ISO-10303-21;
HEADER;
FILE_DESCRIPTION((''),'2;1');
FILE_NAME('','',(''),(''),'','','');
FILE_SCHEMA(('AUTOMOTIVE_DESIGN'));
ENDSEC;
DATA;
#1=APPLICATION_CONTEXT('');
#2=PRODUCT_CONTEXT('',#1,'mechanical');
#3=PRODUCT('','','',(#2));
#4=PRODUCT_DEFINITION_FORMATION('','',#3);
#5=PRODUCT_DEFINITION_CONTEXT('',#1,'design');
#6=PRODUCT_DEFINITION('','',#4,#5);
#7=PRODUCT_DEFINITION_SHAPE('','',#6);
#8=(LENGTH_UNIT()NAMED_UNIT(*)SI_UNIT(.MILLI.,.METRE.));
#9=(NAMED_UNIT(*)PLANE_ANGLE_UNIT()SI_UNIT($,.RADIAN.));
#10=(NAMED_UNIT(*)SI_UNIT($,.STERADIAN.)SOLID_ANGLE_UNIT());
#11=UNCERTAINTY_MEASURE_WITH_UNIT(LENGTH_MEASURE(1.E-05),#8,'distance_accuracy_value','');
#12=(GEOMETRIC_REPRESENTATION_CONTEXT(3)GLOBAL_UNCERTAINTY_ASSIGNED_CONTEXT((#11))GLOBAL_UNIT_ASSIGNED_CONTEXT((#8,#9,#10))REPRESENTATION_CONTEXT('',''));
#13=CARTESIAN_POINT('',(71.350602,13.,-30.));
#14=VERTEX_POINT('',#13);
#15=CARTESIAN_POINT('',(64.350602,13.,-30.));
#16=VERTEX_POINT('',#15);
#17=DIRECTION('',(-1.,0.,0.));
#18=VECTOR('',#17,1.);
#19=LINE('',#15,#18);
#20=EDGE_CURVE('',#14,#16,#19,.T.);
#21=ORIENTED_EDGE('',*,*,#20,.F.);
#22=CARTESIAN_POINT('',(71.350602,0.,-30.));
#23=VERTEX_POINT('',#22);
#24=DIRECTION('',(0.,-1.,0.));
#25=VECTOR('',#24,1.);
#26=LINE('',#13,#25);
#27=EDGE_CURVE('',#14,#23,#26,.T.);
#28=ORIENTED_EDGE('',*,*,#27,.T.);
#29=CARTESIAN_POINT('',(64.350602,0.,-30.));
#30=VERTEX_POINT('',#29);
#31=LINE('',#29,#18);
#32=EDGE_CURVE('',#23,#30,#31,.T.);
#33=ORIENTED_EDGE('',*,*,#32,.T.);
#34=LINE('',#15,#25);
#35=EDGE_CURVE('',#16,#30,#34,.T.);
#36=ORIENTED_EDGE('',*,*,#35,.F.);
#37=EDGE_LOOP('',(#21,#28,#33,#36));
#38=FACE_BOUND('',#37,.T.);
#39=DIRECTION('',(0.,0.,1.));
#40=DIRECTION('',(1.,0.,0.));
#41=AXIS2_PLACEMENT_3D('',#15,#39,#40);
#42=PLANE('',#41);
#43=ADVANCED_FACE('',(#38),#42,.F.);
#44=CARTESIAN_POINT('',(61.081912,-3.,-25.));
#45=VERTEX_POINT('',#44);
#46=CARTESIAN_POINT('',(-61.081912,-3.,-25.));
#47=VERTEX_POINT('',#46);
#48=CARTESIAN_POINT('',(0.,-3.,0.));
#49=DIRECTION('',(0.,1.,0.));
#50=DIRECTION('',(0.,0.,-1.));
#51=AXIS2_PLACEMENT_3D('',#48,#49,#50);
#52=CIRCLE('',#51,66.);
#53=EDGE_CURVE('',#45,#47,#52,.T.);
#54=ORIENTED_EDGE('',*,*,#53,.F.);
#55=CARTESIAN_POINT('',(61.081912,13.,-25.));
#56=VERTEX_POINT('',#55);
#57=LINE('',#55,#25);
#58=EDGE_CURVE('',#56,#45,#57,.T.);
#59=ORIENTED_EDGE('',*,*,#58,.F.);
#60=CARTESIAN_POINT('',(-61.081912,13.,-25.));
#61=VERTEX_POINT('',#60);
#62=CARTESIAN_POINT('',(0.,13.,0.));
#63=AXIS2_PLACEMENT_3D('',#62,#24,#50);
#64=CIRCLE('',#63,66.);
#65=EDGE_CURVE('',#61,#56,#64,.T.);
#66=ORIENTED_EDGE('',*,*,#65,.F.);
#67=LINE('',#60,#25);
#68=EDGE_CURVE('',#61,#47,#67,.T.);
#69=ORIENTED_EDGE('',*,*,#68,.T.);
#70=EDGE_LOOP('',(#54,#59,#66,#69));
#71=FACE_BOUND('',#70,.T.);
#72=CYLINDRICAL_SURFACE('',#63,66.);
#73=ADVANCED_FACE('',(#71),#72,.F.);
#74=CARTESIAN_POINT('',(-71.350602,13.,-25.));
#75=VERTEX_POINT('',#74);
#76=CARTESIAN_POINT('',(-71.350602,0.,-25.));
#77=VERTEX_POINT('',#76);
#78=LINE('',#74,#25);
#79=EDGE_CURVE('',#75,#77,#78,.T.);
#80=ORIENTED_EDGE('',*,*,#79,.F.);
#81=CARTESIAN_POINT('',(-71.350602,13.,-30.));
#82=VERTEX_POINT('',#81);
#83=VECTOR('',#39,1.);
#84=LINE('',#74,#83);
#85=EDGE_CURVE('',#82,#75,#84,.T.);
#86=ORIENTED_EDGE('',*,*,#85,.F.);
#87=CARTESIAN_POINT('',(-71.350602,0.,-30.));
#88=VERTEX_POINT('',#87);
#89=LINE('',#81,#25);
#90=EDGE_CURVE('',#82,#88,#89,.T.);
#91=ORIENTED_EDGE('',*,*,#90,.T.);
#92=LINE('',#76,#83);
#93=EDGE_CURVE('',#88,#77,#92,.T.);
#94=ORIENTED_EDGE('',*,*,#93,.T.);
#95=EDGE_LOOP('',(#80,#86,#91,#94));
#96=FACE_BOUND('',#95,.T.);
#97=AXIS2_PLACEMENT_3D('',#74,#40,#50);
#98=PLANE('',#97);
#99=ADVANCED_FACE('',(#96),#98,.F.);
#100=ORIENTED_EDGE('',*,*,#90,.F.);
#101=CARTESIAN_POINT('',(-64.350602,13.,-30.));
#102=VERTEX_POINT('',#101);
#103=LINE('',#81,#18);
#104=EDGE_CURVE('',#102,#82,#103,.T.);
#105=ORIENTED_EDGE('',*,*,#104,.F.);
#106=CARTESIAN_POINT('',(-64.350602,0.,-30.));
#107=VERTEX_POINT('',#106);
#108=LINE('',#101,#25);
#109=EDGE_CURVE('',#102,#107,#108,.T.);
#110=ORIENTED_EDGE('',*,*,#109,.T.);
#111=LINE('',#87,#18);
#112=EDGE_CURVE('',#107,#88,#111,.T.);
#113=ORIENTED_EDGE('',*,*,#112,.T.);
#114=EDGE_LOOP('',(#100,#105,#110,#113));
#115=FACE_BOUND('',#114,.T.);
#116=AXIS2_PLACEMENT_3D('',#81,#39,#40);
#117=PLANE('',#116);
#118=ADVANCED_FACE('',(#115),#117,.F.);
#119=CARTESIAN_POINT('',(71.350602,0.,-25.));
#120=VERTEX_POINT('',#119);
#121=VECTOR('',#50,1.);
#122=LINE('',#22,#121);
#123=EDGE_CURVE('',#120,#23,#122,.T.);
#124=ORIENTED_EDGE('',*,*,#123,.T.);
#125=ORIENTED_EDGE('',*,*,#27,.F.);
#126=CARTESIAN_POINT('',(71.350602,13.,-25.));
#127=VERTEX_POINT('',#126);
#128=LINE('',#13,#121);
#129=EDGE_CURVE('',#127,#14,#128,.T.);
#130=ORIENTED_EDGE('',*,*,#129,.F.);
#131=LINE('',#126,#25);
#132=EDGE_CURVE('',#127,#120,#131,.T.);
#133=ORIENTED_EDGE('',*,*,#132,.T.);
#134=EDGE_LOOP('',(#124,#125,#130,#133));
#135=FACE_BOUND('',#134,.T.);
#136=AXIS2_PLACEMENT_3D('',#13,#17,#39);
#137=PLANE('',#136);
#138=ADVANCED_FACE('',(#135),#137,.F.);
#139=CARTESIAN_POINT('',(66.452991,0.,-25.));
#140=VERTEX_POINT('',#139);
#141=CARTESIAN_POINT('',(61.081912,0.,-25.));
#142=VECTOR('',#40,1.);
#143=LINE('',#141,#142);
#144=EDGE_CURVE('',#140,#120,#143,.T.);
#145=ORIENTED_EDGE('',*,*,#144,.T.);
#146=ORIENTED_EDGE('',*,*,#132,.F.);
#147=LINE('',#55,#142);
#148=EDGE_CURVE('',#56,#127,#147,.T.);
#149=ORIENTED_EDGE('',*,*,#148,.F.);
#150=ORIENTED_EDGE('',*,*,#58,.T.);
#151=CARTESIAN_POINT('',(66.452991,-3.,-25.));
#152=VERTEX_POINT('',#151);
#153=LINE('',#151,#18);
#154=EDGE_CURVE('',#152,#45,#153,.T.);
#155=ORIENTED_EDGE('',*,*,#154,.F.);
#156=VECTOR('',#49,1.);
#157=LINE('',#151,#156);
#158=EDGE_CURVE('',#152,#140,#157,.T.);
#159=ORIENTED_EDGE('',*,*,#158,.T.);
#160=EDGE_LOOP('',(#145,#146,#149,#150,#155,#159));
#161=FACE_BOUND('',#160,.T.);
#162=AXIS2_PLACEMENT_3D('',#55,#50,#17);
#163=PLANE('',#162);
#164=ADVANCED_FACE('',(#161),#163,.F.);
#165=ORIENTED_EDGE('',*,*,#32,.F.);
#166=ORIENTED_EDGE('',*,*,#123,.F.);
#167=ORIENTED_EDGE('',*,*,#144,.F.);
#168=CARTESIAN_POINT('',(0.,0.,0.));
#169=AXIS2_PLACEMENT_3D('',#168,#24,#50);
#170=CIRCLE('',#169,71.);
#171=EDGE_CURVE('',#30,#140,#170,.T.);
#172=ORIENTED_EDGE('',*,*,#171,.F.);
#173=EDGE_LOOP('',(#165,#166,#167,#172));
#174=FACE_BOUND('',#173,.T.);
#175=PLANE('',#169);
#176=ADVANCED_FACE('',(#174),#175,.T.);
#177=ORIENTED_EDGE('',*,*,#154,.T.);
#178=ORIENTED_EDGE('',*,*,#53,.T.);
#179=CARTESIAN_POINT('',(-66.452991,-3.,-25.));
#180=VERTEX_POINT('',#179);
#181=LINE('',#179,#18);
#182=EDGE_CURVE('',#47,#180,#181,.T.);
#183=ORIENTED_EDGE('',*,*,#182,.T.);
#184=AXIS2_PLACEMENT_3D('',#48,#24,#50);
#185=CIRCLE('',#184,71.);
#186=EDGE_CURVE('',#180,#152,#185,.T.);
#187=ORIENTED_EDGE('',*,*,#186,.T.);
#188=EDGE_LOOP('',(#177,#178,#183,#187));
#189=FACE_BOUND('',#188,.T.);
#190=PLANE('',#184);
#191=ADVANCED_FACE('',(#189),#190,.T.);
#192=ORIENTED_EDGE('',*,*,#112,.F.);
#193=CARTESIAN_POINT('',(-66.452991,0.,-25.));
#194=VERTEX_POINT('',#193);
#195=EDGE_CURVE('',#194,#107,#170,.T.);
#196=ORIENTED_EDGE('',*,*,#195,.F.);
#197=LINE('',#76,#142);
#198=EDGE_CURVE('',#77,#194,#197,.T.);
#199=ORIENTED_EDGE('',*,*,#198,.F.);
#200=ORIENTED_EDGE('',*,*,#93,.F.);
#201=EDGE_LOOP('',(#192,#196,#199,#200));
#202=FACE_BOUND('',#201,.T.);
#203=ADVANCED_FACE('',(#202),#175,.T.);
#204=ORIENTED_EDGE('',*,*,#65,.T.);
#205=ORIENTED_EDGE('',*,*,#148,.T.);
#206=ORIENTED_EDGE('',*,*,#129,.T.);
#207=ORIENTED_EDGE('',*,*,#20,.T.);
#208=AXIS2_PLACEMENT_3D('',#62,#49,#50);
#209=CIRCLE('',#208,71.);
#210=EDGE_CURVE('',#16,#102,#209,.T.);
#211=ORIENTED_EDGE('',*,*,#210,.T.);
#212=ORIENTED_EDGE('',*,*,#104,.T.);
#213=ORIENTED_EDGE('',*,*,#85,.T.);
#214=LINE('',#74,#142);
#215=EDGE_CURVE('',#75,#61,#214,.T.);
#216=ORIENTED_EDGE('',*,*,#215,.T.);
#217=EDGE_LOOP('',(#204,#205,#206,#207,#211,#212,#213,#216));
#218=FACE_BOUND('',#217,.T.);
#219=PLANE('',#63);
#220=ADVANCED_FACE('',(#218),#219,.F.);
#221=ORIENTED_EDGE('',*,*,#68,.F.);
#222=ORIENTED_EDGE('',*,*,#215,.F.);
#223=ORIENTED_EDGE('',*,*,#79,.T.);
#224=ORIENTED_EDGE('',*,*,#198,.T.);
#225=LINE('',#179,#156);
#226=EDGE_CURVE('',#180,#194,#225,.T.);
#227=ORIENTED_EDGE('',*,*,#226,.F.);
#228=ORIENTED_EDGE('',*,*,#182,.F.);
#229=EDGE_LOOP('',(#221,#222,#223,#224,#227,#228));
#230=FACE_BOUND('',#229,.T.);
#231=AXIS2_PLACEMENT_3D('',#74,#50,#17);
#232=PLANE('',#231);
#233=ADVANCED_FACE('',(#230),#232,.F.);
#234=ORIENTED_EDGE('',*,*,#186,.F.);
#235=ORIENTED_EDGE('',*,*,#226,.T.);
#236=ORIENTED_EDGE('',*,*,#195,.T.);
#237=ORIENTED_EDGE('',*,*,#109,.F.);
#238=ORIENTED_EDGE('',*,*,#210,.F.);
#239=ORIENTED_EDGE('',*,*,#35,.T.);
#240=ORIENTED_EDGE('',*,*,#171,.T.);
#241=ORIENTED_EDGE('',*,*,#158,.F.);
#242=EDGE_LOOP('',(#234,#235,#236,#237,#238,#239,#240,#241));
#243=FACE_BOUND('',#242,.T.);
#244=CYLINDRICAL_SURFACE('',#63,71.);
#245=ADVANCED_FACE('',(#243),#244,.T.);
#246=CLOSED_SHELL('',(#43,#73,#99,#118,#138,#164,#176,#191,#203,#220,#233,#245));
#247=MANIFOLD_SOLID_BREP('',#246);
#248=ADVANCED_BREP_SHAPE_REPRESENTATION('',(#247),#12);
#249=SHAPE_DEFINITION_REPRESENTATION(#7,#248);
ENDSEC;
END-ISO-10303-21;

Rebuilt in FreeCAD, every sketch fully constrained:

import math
import FreeCAD as App
import Part
import Sketcher

doc = App.newDocument("Part")
body = doc.addObject("PartDesign::Body", "Body")

sketch1 = doc.addObject("Sketcher::SketchObject", "Sketch")
body.addObject(sketch1)
sketch1.AttachmentSupport = (doc.XZ_Plane, [""])
sketch1.MapMode = "FlatFace"
sketch1.addGeometry([
    Part.LineSegment(App.Vector(-71, -25, 0), App.Vector(-61, -25, 0)),
    Part.ArcOfCircle(Part.Circle(App.Vector(0, 0, 0), App.Vector(0, 0, 1), 66), math.radians(-158), math.radians(-22)),
    Part.LineSegment(App.Vector(61, -25, 0), App.Vector(71, -25, 0)),
    Part.LineSegment(App.Vector(71, -25, 0), App.Vector(71, -30, 0)),
    Part.LineSegment(App.Vector(71, -30, 0), App.Vector(64, -30, 0)),
    Part.ArcOfCircle(Part.Circle(App.Vector(0, 0, 0), App.Vector(0, 0, 1), 71), math.radians(-155), math.radians(-25)),
    Part.LineSegment(App.Vector(-64, -30, 0), App.Vector(-71, -30, 0)),
    Part.LineSegment(App.Vector(-71, -30, 0), App.Vector(-71, -25, 0)),
], False)
sketch1.addConstraint([
    Sketcher.Constraint("Coincident", 0, 2, 1, 1),
    Sketcher.Constraint("Coincident", 1, 2, 2, 1),
    Sketcher.Constraint("Coincident", 2, 2, 3, 1),
    Sketcher.Constraint("Coincident", 3, 2, 4, 1),
    Sketcher.Constraint("Coincident", 4, 2, 5, 2),
    Sketcher.Constraint("Coincident", 5, 1, 6, 1),
    Sketcher.Constraint("Coincident", 6, 2, 7, 1),
    Sketcher.Constraint("Coincident", 7, 2, 0, 1),
    Sketcher.Constraint("Horizontal", 0),
    Sketcher.Constraint("Horizontal", 2),
    Sketcher.Constraint("Vertical", 3),
    Sketcher.Constraint("Horizontal", 4),
    Sketcher.Constraint("Horizontal", 6),
    Sketcher.Constraint("Vertical", 7),
    Sketcher.Constraint("Coincident", 1, 3, -1, 1),
    Sketcher.Constraint("Coincident", 5, 3, -1, 1),
    Sketcher.Constraint("Symmetric", 3, 2, 6, 2, -2),
    Sketcher.Constraint("Horizontal", 0, 2, 1, 2),
    Sketcher.Constraint("Radius", 1, 66.0),
    Sketcher.Constraint("Radius", 5, 71.0),
    Sketcher.Constraint("DistanceX", 4, 2, 4, 1, 7.0),
    Sketcher.Constraint("DistanceY", 3, 2, 3, 1, 5.0),
    Sketcher.Constraint("DistanceY", 0, 2, -1, 1, 25.0),
])
pad1 = doc.addObject("PartDesign::Pad", "Pad")
body.addObject(pad1)
pad1.Profile = sketch1
pad1.Length = 13
pad1.Reversed = True

sketch2 = doc.addObject("Sketcher::SketchObject", "Sketch001")
body.addObject(sketch2)
sketch2.AttachmentSupport = (doc.XZ_Plane, [""])
sketch2.MapMode = "FlatFace"
sketch2.addGeometry([
    Part.LineSegment(App.Vector(66, -25, 0), App.Vector(61, -25, 0)),
    Part.ArcOfCircle(Part.Circle(App.Vector(0, 0, 0), App.Vector(0, 0, 1), 66), math.radians(-158), math.radians(-22)),
    Part.LineSegment(App.Vector(-61, -25, 0), App.Vector(-66, -25, 0)),
    Part.ArcOfCircle(Part.Circle(App.Vector(0, 0, 0), App.Vector(0, 0, 1), 71), math.radians(-159), math.radians(-21)),
], False)
sketch2.addConstraint([
    Sketcher.Constraint("Coincident", 0, 2, 1, 2),
    Sketcher.Constraint("Coincident", 1, 1, 2, 1),
    Sketcher.Constraint("Coincident", 2, 2, 3, 1),
    Sketcher.Constraint("Coincident", 3, 2, 0, 1),
    Sketcher.Constraint("Horizontal", 0),
    Sketcher.Constraint("Horizontal", 2),
    Sketcher.Constraint("Coincident", 1, 3, -1, 1),
    Sketcher.Constraint("Coincident", 3, 3, -1, 1),
    Sketcher.Constraint("Horizontal", 0, 2, 1, 1),
    Sketcher.Constraint("Radius", 1, 66.0),
    Sketcher.Constraint("Radius", 3, 71.0),
    Sketcher.Constraint("DistanceY", 0, 2, -1, 1, 25.0),
])
pad2 = doc.addObject("PartDesign::Pad", "Pad001")
body.addObject(pad2)
pad2.Profile = sketch2
pad2.Length = 3

doc.recompute()
